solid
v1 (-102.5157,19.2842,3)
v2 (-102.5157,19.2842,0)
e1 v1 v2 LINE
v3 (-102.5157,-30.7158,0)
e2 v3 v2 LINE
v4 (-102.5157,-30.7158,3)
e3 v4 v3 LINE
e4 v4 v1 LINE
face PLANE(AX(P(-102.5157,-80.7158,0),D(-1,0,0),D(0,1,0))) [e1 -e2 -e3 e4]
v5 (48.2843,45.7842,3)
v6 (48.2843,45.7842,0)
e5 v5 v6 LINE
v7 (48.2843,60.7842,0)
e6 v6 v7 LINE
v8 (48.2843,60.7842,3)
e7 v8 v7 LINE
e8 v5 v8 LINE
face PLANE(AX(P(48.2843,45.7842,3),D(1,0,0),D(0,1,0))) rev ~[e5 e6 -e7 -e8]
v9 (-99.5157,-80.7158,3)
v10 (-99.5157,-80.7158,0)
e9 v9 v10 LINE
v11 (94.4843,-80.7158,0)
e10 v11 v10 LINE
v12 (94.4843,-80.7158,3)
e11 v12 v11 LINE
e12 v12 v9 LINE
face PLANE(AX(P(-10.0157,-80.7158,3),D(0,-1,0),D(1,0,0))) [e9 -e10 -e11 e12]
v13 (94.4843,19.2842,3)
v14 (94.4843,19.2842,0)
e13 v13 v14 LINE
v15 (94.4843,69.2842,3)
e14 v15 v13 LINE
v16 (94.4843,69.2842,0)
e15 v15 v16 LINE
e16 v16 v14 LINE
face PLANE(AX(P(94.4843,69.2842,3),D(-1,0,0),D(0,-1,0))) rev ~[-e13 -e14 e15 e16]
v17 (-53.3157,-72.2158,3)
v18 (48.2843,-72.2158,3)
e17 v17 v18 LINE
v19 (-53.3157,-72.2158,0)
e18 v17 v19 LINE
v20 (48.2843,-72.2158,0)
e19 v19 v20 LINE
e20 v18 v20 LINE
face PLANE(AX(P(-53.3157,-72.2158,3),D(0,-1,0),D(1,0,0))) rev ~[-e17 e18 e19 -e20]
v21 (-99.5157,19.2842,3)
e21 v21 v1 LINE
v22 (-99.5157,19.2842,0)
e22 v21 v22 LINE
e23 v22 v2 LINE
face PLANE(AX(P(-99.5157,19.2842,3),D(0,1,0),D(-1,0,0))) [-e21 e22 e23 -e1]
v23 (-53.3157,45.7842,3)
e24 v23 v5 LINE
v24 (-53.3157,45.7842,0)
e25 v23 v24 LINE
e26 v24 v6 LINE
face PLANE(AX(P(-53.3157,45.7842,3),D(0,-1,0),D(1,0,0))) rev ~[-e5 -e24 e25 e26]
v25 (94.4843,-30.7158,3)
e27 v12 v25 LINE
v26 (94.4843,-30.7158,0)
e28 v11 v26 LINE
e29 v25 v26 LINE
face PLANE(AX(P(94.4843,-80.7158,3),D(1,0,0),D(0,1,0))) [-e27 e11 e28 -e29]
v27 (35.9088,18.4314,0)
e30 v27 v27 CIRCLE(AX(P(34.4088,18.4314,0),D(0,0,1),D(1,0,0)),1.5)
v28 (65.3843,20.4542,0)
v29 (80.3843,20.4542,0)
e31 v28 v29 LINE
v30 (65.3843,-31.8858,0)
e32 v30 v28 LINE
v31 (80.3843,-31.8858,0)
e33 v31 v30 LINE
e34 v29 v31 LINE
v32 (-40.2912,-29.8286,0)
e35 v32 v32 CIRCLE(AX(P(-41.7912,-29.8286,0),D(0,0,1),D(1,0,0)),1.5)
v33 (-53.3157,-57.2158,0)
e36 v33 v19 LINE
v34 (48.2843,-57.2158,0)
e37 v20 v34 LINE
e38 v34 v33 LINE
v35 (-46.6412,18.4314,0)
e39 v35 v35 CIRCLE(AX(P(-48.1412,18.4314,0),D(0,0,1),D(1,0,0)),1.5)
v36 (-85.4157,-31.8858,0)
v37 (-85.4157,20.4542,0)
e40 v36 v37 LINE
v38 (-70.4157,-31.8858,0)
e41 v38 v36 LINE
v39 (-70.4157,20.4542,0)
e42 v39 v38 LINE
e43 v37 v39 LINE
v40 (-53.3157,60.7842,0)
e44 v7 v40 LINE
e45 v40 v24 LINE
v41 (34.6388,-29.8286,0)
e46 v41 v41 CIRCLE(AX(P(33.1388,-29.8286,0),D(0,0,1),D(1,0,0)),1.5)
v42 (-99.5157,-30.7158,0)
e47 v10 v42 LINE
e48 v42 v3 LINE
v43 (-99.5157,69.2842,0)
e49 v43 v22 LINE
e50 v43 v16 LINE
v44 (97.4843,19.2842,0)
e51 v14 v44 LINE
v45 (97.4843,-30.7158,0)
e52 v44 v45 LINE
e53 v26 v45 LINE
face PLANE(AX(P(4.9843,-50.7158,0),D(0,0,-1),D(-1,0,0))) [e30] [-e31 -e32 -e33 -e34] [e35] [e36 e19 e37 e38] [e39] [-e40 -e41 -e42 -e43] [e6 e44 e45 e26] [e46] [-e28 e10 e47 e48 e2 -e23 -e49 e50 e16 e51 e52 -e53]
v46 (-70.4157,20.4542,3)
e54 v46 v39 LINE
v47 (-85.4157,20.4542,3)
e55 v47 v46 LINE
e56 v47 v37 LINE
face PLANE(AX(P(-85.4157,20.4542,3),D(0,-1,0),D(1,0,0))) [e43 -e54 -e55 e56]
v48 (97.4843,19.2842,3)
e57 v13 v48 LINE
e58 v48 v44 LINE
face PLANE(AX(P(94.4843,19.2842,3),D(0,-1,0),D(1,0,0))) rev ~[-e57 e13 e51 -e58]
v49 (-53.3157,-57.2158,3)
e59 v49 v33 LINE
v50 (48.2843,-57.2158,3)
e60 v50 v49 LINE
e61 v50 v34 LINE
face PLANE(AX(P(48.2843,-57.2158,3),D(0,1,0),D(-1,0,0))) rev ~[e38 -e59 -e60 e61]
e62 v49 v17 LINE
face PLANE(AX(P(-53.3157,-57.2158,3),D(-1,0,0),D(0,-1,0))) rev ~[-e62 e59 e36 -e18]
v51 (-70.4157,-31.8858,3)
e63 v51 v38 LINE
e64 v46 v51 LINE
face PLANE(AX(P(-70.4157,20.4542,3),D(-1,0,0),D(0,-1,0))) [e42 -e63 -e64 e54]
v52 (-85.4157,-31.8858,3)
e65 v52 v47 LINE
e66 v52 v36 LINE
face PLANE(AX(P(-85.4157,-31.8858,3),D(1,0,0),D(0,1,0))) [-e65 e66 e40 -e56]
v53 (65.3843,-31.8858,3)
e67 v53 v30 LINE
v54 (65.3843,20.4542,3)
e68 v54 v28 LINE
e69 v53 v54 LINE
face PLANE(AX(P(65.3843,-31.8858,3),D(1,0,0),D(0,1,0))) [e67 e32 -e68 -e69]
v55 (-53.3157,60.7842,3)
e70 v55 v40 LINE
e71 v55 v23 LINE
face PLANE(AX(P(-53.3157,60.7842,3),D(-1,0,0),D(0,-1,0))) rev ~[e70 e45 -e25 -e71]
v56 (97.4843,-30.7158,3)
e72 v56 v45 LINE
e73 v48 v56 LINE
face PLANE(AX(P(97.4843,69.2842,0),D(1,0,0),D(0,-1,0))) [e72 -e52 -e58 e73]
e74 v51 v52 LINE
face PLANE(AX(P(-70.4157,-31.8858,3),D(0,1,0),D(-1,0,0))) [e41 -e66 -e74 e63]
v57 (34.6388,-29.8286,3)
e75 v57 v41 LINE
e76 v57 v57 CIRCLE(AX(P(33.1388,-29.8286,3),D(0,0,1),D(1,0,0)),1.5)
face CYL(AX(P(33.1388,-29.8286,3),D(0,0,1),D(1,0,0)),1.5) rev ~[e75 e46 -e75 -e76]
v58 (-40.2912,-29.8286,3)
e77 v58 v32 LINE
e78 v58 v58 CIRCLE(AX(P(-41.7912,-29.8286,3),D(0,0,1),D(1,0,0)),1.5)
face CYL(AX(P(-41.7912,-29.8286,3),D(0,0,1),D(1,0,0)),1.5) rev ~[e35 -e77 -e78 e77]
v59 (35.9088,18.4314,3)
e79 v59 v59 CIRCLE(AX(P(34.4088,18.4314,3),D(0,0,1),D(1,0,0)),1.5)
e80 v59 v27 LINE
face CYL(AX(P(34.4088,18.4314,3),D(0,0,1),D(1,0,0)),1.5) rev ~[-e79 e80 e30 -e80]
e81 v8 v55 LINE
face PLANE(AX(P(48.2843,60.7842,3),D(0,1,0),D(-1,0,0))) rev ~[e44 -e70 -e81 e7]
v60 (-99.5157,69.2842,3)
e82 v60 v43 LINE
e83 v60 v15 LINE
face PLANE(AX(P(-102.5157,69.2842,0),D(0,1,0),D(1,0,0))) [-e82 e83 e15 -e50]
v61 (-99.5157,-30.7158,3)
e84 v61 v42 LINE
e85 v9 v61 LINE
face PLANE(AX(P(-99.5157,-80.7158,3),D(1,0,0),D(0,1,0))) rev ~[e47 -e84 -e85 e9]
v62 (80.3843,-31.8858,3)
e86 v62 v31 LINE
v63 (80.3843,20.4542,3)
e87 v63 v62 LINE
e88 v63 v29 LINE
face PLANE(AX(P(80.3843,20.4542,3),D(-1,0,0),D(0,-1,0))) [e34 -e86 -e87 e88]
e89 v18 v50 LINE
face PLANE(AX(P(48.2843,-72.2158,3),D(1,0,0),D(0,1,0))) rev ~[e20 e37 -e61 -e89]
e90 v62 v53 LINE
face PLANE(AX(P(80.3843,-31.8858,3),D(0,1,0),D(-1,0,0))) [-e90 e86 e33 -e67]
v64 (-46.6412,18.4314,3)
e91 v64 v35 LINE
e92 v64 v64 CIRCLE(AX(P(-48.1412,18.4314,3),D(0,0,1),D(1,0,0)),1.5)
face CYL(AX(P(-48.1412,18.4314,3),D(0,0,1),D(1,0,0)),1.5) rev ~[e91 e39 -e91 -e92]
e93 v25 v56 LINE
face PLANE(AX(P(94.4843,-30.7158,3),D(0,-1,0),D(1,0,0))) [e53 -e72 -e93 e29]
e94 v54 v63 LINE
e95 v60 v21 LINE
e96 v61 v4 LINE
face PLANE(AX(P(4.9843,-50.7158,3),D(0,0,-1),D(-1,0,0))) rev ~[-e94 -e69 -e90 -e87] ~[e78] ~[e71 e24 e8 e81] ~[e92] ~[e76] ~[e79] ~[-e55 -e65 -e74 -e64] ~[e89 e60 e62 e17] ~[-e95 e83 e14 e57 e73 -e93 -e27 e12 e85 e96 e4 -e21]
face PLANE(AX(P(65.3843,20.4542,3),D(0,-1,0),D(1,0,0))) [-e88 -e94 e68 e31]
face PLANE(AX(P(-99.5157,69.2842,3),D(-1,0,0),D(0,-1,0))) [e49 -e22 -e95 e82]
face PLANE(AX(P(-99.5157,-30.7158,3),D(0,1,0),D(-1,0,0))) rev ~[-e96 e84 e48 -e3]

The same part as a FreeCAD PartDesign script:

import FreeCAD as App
import Part
import Sketcher
from FreeCAD import Vector


def add_polygon(sketch, points):
    """Adds a closed chain of lines whose ends are joined by coincident constraints."""
    first, n = sketch.GeometryCount, len(points)
    for a, b in zip(points, points[1:] + points[:1]):
        sketch.addGeometry(Part.LineSegment(App.Vector(*a, 0), App.Vector(*b, 0)), False)
    for i in range(n):
        sketch.addConstraint(Sketcher.Constraint("Coincident", first + i, 2, first + (i + 1) % n, 1))

doc = App.newDocument("Part")
body = doc.addObject("PartDesign::Body", "Body")

sketch1 = body.newObject("Sketcher::SketchObject", "Sketch")
sketch1.AttachmentSupport = (doc.getObject("XY_Plane"), [""])
sketch1.MapMode = "FlatFace"
add_polygon(sketch1, [(97, 69), (-103, 69), (-103, -81), (97, -81)])
sketch1.addConstraint(Sketcher.Constraint("Horizontal", 0))
sketch1.addConstraint(Sketcher.Constraint("Vertical", 1))
sketch1.addConstraint(Sketcher.Constraint("Horizontal", 2))
sketch1.addConstraint(Sketcher.Constraint("Vertical", 3))
sketch1.addConstraint(Sketcher.Constraint("DistanceX", 0, 2, 0, 1, 200.0))
sketch1.addConstraint(Sketcher.Constraint("DistanceY", 1, 2, 1, 1, 150.0))
sketch1.addConstraint(Sketcher.Constraint("DistanceX", 0, 2, -1, 1, 102.5157))
sketch1.addConstraint(Sketcher.Constraint("DistanceY", -1, 1, 0, 2, 69.2842))
pad1 = body.newObject("PartDesign::Pad", "Pad")
pad1.Profile = sketch1
pad1.Length = 3

sketch2 = body.newObject("Sketcher::SketchObject", "Sketch001")
sketch2.AttachmentSupport = (doc.getObject("XY_Plane"), [""])
sketch2.MapMode = "FlatFace"
sketch2.AttachmentOffset = App.Placement(Vector(0, 0, 3), App.Rotation())
add_polygon(sketch2, [(-99.5, 19.3), (-99.5, 69.3), (-102.5, 69.3), (-102.5, 19.3)])
sketch2.addConstraint(Sketcher.Constraint("Vertical", 0))
sketch2.addConstraint(Sketcher.Constraint("Horizontal", 1))
sketch2.addConstraint(Sketcher.Constraint("Vertical", 2))
sketch2.addConstraint(Sketcher.Constraint("Horizontal", 3))
sketch2.addConstraint(Sketcher.Constraint("DistanceX", 1, 2, 1, 1, 3.0))
sketch2.addConstraint(Sketcher.Constraint("DistanceY", 0, 1, 0, 2, 50.0))
sketch2.addConstraint(Sketcher.Constraint("DistanceX", 0, 2, -1, 1, 99.5157))
sketch2.addConstraint(Sketcher.Constraint("DistanceY", -1, 1, 0, 2, 69.2842))
pocket1 = body.newObject("PartDesign::Pocket", "Pocket")
pocket1.Profile = sketch2
pocket1.Length = 3

sketch3 = body.newObject("Sketcher::SketchObject", "Sketch002")
sketch3.AttachmentSupport = (doc.getObject("XY_Plane"), [""])
sketch3.MapMode = "FlatFace"
sketch3.AttachmentOffset = App.Placement(Vector(0, 0, 3), App.Rotation())
add_polygon(sketch3, [(94.5, -80.7), (97.5, -80.7), (97.5, -30.7), (94.5, -30.7)])
sketch3.addConstraint(Sketcher.Constraint("Horizontal", 0))
sketch3.addConstraint(Sketcher.Constraint("Vertical", 1))
sketch3.addConstraint(Sketcher.Constraint("Horizontal", 2))
sketch3.addConstraint(Sketcher.Constraint("Vertical", 3))
sketch3.addConstraint(Sketcher.Constraint("DistanceX", 0, 1, 0, 2, 3.0))
sketch3.addConstraint(Sketcher.Constraint("DistanceY", 1, 1, 1, 2, 50.0))
sketch3.addConstraint(Sketcher.Constraint("DistanceX", -1, 1, 0, 2, 97.4843))
sketch3.addConstraint(Sketcher.Constraint("DistanceY", 0, 2, -1, 1, 80.7158))
pocket2 = body.newObject("PartDesign::Pocket", "Pocket001")
pocket2.Profile = sketch3
pocket2.Length = 3

sketch4 = body.newObject("Sketcher::SketchObject", "Sketch003")
sketch4.AttachmentSupport = (doc.getObject("XY_Plane"), [""])
sketch4.MapMode = "FlatFace"
sketch4.AttachmentOffset = App.Placement(Vector(0, 0, 3), App.Rotation())
add_polygon(sketch4, [(94.5, 19.3), (97.5, 19.3), (97.5, 69.3), (94.5, 69.3)])
sketch4.addConstraint(Sketcher.Constraint("Horizontal", 0))
sketch4.addConstraint(Sketcher.Constraint("Vertical", 1))
sketch4.addConstraint(Sketcher.Constraint("Horizontal", 2))
sketch4.addConstraint(Sketcher.Constraint("Vertical", 3))
sketch4.addConstraint(Sketcher.Constraint("DistanceX", 0, 1, 0, 2, 3.0))
sketch4.addConstraint(Sketcher.Constraint("DistanceY", 1, 1, 1, 2, 50.0))
sketch4.addConstraint(Sketcher.Constraint("DistanceX", -1, 1, 0, 2, 97.4843))
sketch4.addConstraint(Sketcher.Constraint("DistanceY", -1, 1, 0, 2, 19.2842))
pocket3 = body.newObject("PartDesign::Pocket", "Pocket002")
pocket3.Profile = sketch4
pocket3.Length = 3

sketch5 = body.newObject("Sketcher::SketchObject", "Sketch004")
sketch5.AttachmentSupport = (doc.getObject("XY_Plane"), [""])
sketch5.MapMode = "FlatFace"
sketch5.AttachmentOffset = App.Placement(Vector(0, 0, 3), App.Rotation())
add_polygon(sketch5, [(-99.5, -30.7), (-102.5, -30.7), (-102.5, -80.7), (-99.5, -80.7)])
sketch5.addConstraint(Sketcher.Constraint("Horizontal", 0))
sketch5.addConstraint(Sketcher.Constraint("Vertical", 1))
sketch5.addConstraint(Sketcher.Constraint("Horizontal", 2))
sketch5.addConstraint(Sketcher.Constraint("Vertical", 3))
sketch5.addConstraint(Sketcher.Constraint("DistanceX", 0, 2, 0, 1, 3.0))
sketch5.addConstraint(Sketcher.Constraint("DistanceY", 1, 2, 1, 1, 50.0))
sketch5.addConstraint(Sketcher.Constraint("DistanceX", 0, 2, -1, 1, 102.5157))
sketch5.addConstraint(Sketcher.Constraint("DistanceY", 0, 2, -1, 1, 30.7158))
pocket4 = body.newObject("PartDesign::Pocket", "Pocket003")
pocket4.Profile = sketch5
pocket4.Length = 3

sketch6 = body.newObject("Sketcher::SketchObject", "Sketch005")
sketch6.AttachmentSupport = (doc.getObject("XY_Plane"), [""])
sketch6.MapMode = "FlatFace"
sketch6.AttachmentOffset = App.Placement(Vector(0, 0, 3), App.Rotation())
add_polygon(sketch6, [(-10, -81), (5, -81), (5, -51), (-10, -51)])
sketch6.addConstraint(Sketcher.Constraint("Horizontal", 0))
sketch6.addConstraint(Sketcher.Constraint("Vertical", 1))
sketch6.addConstraint(Sketcher.Constraint("Horizontal", 2))
sketch6.addConstraint(Sketcher.Constraint("Vertical", 3))
sketch6.addConstraint(Sketcher.Constraint("DistanceX", 0, 1, 0, 2, 15.0))
sketch6.addConstraint(Sketcher.Constraint("DistanceY", 1, 1, 1, 2, 30.0))
sketch6.addConstraint(Sketcher.Constraint("DistanceX", -1, 1, 0, 2, 4.9843))
sketch6.addConstraint(Sketcher.Constraint("DistanceY", 0, 2, -1, 1, 80.7158))
pocket5 = body.newObject("PartDesign::Pocket", "Pocket004")
pocket5.Profile = sketch6
pocket5.Length = 3

sketch7 = body.newObject("Sketcher::SketchObject", "Sketch006")
sketch7.AttachmentSupport = (doc.getObject("XZ_Plane"), [""])
sketch7.MapMode = "FlatFace"
sketch7.AttachmentOffset = App.Placement(Vector(0, 0, 50.7158), App.Rotation())
add_polygon(sketch7, [(5, 0), (5, 3), (-10, 3), (-10, 0)])
sketch7.addConstraint(Sketcher.Constraint("Vertical", 0))
sketch7.addConstraint(Sketcher.Constraint("Horizontal", 1))
sketch7.addConstraint(Sketcher.Constraint("Vertical", 2))
sketch7.addConstraint(Sketcher.Constraint("Horizontal", 3))
sketch7.addConstraint(Sketcher.Constraint("PointOnObject", 2, 2, -1))
sketch7.addConstraint(Sketcher.Constraint("DistanceX", 1, 2, 1, 1, 15.0))
sketch7.addConstraint(Sketcher.Constraint("DistanceY", 0, 1, 0, 2, 3.0))
sketch7.addConstraint(Sketcher.Constraint("DistanceX", -1, 1, 0, 2, 4.9843))
pad2 = body.newObject("PartDesign::Pad", "Pad001")
pad2.Profile = sketch7
pad2.Length = 30

sketch8 = body.newObject("Sketcher::SketchObject", "Sketch007")
sketch8.AttachmentSupport = (doc.getObject("XY_Plane"), [""])
sketch8.MapMode = "FlatFace"
sketch8.AttachmentOffset = App.Placement(Vector(0, 0, 3), App.Rotation())
sketch8.addGeometry(Part.Circle(Vector(34.4, 18.4, 0), Vector(0, 0, 1), 1.5), False)
sketch8.addGeometry(Part.Circle(Vector(33.1, -29.8, 0), Vector(0, 0, 1), 1.5), False)
sketch8.addGeometry(Part.Circle(Vector(-41.8, -29.8, 0), Vector(0, 0, 1), 1.5), False)
sketch8.addGeometry(Part.Circle(Vector(-48.1, 18.4, 0), Vector(0, 0, 1), 1.5), False)
sketch8.addConstraint(Sketcher.Constraint("Equal", 0, 1))
sketch8.addConstraint(Sketcher.Constraint("Equal", 1, 2))
sketch8.addConstraint(Sketcher.Constraint("Equal", 2, 3))
sketch8.addConstraint(Sketcher.Constraint("Horizontal", 1, 3, 2, 3))
sketch8.addConstraint(Sketcher.Constraint("Horizontal", 0, 3, 3, 3))
sketch8.addConstraint(Sketcher.Constraint("Diameter", 0, 3.0))
sketch8.addConstraint(Sketcher.Constraint("DistanceX", 2, 3, 0, 3, 76.2))
sketch8.addConstraint(Sketcher.Constraint("DistanceX", 1, 3, 0, 3, 1.27))
sketch8.addConstraint(Sketcher.Constraint("DistanceY", 1, 3, 0, 3, 48.26))
sketch8.addConstraint(Sketcher.Constraint("DistanceX", 3, 3, 2, 3, 6.35))
sketch8.addConstraint(Sketcher.Constraint("DistanceX", -1, 1, 0, 3, 34.4088))
sketch8.addConstraint(Sketcher.Constraint("DistanceY", -1, 1, 0, 3, 18.4314))
pocket6 = body.newObject("PartDesign::Pocket", "Pocket005")
pocket6.Profile = sketch8
pocket6.Length = 3

sketch9 = body.newObject("Sketcher::SketchObject", "Sketch008")
sketch9.AttachmentSupport = (doc.getObject("XY_Plane"), [""])
sketch9.MapMode = "FlatFace"
sketch9.AttachmentOffset = App.Placement(Vector(0, 0, 3), App.Rotation())
add_polygon(sketch9, [(-70, 20), (-85, 20), (-85, -32), (-70, -32)])
add_polygon(sketch9, [(-53, 61), (-53, 46), (48, 46), (48, 61)])
add_polygon(sketch9, [(80, 20), (65, 20), (65, -32), (80, -32)])
add_polygon(sketch9, [(-53, -57), (-53, -72), (48, -72), (48, -57)])
sketch9.addConstraint(Sketcher.Constraint("Horizontal", 0))
sketch9.addConstraint(Sketcher.Constraint("Vertical", 1))
sketch9.addConstraint(Sketcher.Constraint("Horizontal", 2))
sketch9.addConstraint(Sketcher.Constraint("Vertical", 3))
sketch9.addConstraint(Sketcher.Constraint("Vertical", 4))
sketch9.addConstraint(Sketcher.Constraint("Horizontal", 5))
sketch9.addConstraint(Sketcher.Constraint("Vertical", 6))
sketch9.addConstraint(Sketcher.Constraint("Horizontal", 7))
sketch9.addConstraint(Sketcher.Constraint("Horizontal", 8))
sketch9.addConstraint(Sketcher.Constraint("Vertical", 9))
sketch9.addConstraint(Sketcher.Constraint("Horizontal", 10))
sketch9.addConstraint(Sketcher.Constraint("Vertical", 11))
sketch9.addConstraint(Sketcher.Constraint("Vertical", 12))
sketch9.addConstraint(Sketcher.Constraint("Horizontal", 13))
sketch9.addConstraint(Sketcher.Constraint("Vertical", 14))
sketch9.addConstraint(Sketcher.Constraint("Horizontal", 15))
sketch9.addConstraint(Sketcher.Constraint("Horizontal", 3, 2, 8, 2))
sketch9.addConstraint(Sketcher.Constraint("Horizontal", 2, 2, 9, 2))
sketch9.addConstraint(Sketcher.Constraint("Vertical", 7, 2, 12, 2))
sketch9.addConstraint(Sketcher.Constraint("Vertical", 6, 2, 13, 2))
sketch9.addConstraint(Sketcher.Constraint("Equal", 2, 8))
sketch9.addConstraint(Sketcher.Constraint("Equal", 10, 4))
sketch9.addConstraint(Sketcher.Constraint("Equal", 6, 12))
sketch9.addConstraint(Sketcher.Constraint("DistanceX", 0, 2, 0, 1, 15.0))
sketch9.addConstraint(Sketcher.Constraint("DistanceX", 5, 1, 5, 2, 101.6))
sketch9.addConstraint(Sketcher.Constraint("DistanceY", 12, 2, 4, 2, 118.0))
sketch9.addConstraint(Sketcher.Constraint("DistanceY", 1, 2, 1, 1, 52.34))
sketch9.addConstraint(Sketcher.Constraint("DistanceX", 3, 2, 4, 2, 17.1))
sketch9.addConstraint(Sketcher.Constraint("DistanceX", 5, 2, 8, 2, 17.1))
sketch9.addConstraint(Sketcher.Constraint("DistanceY", 3, 2, 4, 2, 25.33))
sketch9.addConstraint(Sketcher.Constraint("DistanceX", 0, 2, -1, 1, 85.4157))
sketch9.addConstraint(Sketcher.Constraint("DistanceY", -1, 1, 0, 2, 20.4542))
pocket7 = body.newObject("PartDesign::Pocket", "Pocket006")
pocket7.Profile = sketch9
pocket7.Length = 3

doc.recompute()
